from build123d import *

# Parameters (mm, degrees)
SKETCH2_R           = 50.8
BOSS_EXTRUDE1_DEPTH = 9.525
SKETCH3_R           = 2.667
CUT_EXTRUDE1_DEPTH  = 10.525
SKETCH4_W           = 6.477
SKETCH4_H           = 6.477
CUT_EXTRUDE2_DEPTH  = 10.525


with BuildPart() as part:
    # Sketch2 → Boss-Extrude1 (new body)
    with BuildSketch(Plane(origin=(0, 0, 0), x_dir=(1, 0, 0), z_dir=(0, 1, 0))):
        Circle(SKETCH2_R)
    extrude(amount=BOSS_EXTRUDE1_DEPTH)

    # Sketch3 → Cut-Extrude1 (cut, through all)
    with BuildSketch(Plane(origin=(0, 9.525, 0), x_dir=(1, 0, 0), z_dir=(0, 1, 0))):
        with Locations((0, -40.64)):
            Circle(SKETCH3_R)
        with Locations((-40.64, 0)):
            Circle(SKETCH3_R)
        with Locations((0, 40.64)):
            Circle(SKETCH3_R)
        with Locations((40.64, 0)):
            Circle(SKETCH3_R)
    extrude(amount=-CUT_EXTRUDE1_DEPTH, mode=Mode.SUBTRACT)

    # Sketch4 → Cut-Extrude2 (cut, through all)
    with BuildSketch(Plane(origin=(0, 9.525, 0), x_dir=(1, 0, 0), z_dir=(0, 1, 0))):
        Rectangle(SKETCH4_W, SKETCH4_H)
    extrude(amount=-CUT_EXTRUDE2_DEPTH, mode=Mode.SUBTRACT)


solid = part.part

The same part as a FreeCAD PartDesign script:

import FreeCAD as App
import Part
import Sketcher
from FreeCAD import Vector
Q = App.Units.Quantity


def add_polygon(sketch, points):
    """Adds a closed chain of lines whose ends are joined by coincident constraints."""
    first, n = sketch.GeometryCount, len(points)
    for a, b in zip(points, points[1:] + points[:1]):
        sketch.addGeometry(Part.LineSegment(App.Vector(*a, 0), App.Vector(*b, 0)), False)
    for i in range(n):
        sketch.addConstraint(Sketcher.Constraint("Coincident", first + i, 2, first + (i + 1) % n, 1))

doc = App.newDocument("Part")
body = doc.addObject("PartDesign::Body", "Body")

sketch1 = body.newObject("Sketcher::SketchObject", "Sketch")
sketch1.AttachmentSupport = (doc.getObject("XZ_Plane"), [""])
sketch1.MapMode = "FlatFace"
sketch1.addGeometry(Part.Circle(Vector(0, 0, 0), Vector(0, 0, 1), 50.8), False)
sketch1.addConstraint([
    Sketcher.Constraint("Coincident", 0, 3, -1, 1),
    Sketcher.Constraint("Diameter", 0, Q("4 in")),
])
pad1 = body.newObject("PartDesign::Pad", "Pad")
pad1.Profile = sketch1
pad1.Length = Q("0.375 in")
pad1.Reversed = True

sketch2 = body.newObject("Sketcher::SketchObject", "Sketch001")
sketch2.AttachmentSupport = (doc.getObject("XZ_Plane"), [""])
sketch2.MapMode = "FlatFace"
sketch2.AttachmentOffset = App.Placement(Vector(0, 0, -0.375 * 25.4), App.Rotation())
sketch2.addGeometry([
    Part.Circle(Vector(0, 40.64, 0), Vector(0, 0, 1), 2.667),
    Part.Circle(Vector(-40.64, 0, 0), Vector(0, 0, 1), 2.667),
    Part.Circle(Vector(0, -40.64, 0), Vector(0, 0, 1), 2.667),
    Part.Circle(Vector(40.64, 0, 0), Vector(0, 0, 1), 2.667),
], False)
sketch2.addConstraint([
    Sketcher.Constraint("Equal", 0, 1),
    Sketcher.Constraint("Equal", 1, 2),
    Sketcher.Constraint("Equal", 2, 3),
    Sketcher.Constraint("Symmetric", 0, 3, 2, 3, -1, 1),
    Sketcher.Constraint("Symmetric", 1, 3, 3, 3, -1, 1),
    Sketcher.Constraint("PointOnObject", 0, 3, -2),
    Sketcher.Constraint("PointOnObject", 1, 3, -1),
    Sketcher.Constraint("Diameter", 0, Q("0.21 in")),
    Sketcher.Constraint("DistanceY", -1, 1, 0, 3, Q("1.6 in")),
    Sketcher.Constraint("DistanceX", 1, 3, -1, 1, Q("1.6 in")),
])
pocket1 = body.newObject("PartDesign::Pocket", "Pocket")
pocket1.Profile = sketch2
pocket1.Type = "ThroughAll"
pocket1.Reversed = True

sketch3 = body.newObject("Sketcher::SketchObject", "Sketch002")
sketch3.AttachmentSupport = (doc.getObject("XZ_Plane"), [""])
sketch3.MapMode = "FlatFace"
sketch3.AttachmentOffset = App.Placement(Vector(0, 0, -0.375 * 25.4), App.Rotation())
add_polygon(sketch3, [(-3.2385, -3.2385), (-3.2385, 3.2385), (3.2385, 3.2385), (3.2385, -3.2385)])
sketch3.addConstraint([
    Sketcher.Constraint("Vertical", 0),
    Sketcher.Constraint("Horizontal", 1),
    Sketcher.Constraint("Vertical", 2),
    Sketcher.Constraint("Horizontal", 3),
    Sketcher.Constraint("Symmetric", 0, 2, 2, 2, -1, 1),
    Sketcher.Constraint("Equal", 3, 0),
    Sketcher.Constraint("DistanceX", 1, 1, 1, 2, Q("0.255 in")),
])
pocket2 = body.newObject("PartDesign::Pocket", "Pocket001")
pocket2.Profile = sketch3
pocket2.Type = "ThroughAll"
pocket2.Reversed = True

doc.recompute()
